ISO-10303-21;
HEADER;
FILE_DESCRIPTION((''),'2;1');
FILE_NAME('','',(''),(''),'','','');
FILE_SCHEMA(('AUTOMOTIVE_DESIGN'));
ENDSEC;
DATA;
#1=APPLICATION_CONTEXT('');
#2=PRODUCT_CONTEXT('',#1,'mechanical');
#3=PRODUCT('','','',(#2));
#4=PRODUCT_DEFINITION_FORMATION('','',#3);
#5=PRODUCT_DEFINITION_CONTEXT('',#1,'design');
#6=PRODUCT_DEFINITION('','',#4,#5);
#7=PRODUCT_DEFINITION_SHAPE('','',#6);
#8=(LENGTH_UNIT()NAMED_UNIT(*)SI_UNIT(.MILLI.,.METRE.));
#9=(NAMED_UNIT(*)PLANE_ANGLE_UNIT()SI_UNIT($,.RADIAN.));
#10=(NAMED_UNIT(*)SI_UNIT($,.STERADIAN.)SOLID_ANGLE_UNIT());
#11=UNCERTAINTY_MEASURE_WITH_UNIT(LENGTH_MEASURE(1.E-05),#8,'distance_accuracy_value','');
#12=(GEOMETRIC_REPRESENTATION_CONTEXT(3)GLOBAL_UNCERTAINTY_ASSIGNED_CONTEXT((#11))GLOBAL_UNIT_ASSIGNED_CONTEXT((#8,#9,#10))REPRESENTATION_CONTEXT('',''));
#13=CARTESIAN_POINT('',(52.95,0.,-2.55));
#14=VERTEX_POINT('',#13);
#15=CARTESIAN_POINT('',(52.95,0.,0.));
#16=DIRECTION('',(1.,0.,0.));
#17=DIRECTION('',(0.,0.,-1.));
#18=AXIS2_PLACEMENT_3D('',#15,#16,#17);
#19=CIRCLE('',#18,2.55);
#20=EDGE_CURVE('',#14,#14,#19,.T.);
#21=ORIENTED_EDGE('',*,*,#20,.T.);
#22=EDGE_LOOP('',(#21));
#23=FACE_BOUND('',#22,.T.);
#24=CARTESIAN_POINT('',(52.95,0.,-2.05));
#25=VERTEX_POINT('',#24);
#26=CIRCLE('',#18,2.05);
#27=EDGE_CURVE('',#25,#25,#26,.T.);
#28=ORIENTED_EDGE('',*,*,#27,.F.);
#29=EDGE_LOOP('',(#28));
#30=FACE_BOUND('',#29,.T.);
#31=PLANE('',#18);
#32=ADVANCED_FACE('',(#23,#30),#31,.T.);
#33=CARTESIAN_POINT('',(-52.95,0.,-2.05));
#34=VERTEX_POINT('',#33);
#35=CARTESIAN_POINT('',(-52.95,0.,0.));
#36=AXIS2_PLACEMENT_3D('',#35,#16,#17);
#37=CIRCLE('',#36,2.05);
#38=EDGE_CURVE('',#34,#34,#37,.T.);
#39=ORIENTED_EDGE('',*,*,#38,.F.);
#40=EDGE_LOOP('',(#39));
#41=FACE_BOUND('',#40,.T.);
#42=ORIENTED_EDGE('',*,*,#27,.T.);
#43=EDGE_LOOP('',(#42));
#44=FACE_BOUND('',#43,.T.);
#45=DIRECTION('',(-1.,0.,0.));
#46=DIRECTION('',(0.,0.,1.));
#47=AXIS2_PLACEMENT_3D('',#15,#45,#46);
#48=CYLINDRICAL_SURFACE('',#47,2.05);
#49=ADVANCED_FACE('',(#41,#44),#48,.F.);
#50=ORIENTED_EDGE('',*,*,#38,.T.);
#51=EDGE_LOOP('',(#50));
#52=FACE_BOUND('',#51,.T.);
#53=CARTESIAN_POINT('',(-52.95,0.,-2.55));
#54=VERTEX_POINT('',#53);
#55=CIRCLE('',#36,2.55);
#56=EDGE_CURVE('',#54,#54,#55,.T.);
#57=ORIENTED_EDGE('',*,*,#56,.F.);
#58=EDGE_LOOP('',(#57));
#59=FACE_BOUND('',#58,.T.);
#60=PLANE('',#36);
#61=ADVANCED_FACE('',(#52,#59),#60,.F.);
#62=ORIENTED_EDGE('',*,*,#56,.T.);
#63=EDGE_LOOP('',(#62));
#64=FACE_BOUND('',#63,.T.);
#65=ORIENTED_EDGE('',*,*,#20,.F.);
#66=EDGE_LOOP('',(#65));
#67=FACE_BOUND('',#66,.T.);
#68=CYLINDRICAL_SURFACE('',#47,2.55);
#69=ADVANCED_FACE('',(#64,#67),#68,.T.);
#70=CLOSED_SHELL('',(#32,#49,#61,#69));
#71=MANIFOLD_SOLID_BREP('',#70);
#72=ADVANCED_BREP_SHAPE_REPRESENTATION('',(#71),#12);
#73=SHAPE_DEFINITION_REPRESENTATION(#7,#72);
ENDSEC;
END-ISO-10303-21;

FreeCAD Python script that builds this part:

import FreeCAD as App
import Part
import Sketcher
from FreeCAD import Vector

doc = App.newDocument("Part")
body = doc.addObject("PartDesign::Body", "Body")

# Sketch on YZ plane
sketch1 = body.newObject("Sketcher::SketchObject", "Sketch")
sketch1.AttachmentSupport = (doc.getObject("YZ_Plane"), [""])
sketch1.MapMode = "FlatFace"
sketch1.addGeometry(Part.Circle(Vector(0, 0, 0), Vector(0, 0, 1), 2.5), False)
sketch1.addGeometry(Part.Circle(Vector(0, 0, 0), Vector(0, 0, 1), 2), False)
sketch1.addConstraint(Sketcher.Constraint("Coincident", 0, 3, -1, 1))
sketch1.addConstraint(Sketcher.Constraint("Coincident", 1, 3, -1, 1))
sketch1.addConstraint(Sketcher.Constraint("Diameter", 0, 5.1))
sketch1.addConstraint(Sketcher.Constraint("Diameter", 1, 4.1))
pad1 = body.newObject("PartDesign::Pad", "Pad")
pad1.Profile = sketch1
pad1.Length = 105.9
pad1.Midplane = True

doc.recompute()
